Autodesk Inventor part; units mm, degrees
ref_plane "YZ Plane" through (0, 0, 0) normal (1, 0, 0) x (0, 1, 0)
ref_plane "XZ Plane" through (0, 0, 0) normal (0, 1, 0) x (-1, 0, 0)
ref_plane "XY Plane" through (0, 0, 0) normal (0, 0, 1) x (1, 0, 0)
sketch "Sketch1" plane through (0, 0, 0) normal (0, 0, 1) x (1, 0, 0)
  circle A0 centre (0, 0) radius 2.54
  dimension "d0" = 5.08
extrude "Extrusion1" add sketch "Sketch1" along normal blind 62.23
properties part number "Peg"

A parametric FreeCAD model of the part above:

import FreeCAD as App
import Part
import Sketcher
Q = App.Units.Quantity

doc = App.newDocument("Part")
body = doc.addObject("PartDesign::Body", "Body")

sketch1 = body.newObject("Sketcher::SketchObject", "Sketch")
sketch1.AttachmentSupport = (doc.getObject("XY_Plane"), [""])
sketch1.MapMode = "FlatFace"
sketch1.addGeometry(Part.Circle(App.Vector(0, 0, 0), App.Vector(0, 0, 1), 2.54), False)
sketch1.addConstraint(Sketcher.Constraint("Coincident", 0, 3, -1, 1))
sketch1.addConstraint(Sketcher.Constraint("Diameter", 0, Q("0.2 in")))
pad1 = body.newObject("PartDesign::Pad", "Pad")
pad1.Profile = sketch1
pad1.Length = Q("2.45 in")

doc.recompute()
